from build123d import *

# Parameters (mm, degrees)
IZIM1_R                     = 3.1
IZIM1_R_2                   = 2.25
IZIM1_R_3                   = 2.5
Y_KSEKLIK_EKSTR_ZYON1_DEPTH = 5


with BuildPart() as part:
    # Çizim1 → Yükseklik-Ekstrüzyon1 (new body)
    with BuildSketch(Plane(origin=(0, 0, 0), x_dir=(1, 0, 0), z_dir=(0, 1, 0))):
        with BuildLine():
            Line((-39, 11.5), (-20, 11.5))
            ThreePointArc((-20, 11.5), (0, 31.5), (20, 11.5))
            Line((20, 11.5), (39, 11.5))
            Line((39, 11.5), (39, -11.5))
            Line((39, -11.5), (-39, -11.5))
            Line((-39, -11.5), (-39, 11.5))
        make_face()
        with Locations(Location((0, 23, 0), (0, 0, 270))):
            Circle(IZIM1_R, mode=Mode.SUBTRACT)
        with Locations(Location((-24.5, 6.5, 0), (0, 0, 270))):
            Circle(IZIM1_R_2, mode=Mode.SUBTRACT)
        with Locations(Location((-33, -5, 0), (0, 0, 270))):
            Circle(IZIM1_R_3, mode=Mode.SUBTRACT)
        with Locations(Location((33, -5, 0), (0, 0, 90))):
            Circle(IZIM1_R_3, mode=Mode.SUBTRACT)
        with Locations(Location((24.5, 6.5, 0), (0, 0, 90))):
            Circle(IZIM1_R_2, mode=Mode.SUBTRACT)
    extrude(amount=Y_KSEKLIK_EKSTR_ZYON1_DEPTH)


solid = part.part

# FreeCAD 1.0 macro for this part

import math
import FreeCAD as App
import Part
import Sketcher
from FreeCAD import Vector

doc = App.newDocument("Part")
body = doc.addObject("PartDesign::Body", "Body")

# Sketch on XZ plane
sketch1 = body.newObject("Sketcher::SketchObject", "Sketch")
sketch1.AttachmentSupport = (doc.getObject("XZ_Plane"), [""])
sketch1.MapMode = "FlatFace"
sketch1.addGeometry([
    Part.LineSegment(Vector(-20, -11.5, 0), Vector(-39, -11.5, 0)),  # 0
    Part.LineSegment(Vector(-39, -11.5, 0), Vector(-39, 11.5, 0)),  # 1
    Part.LineSegment(Vector(-39, 11.5, 0), Vector(39, 11.5, 0)),  # 2
    Part.LineSegment(Vector(39, 11.5, 0), Vector(39, -11.5, 0)),  # 3
    Part.LineSegment(Vector(39, -11.5, 0), Vector(20, -11.5, 0)),  # 4
    Part.ArcOfCircle(Part.Circle(Vector(0, -11.5, 0), Vector(0, 0, 1), 20), math.radians(180), math.radians(360)),  # 5
    Part.Circle(Vector(33, 5, 0), Vector(0, 0, 1), 2.5),  # 6
    Part.Circle(Vector(24.5, -6.5, 0), Vector(0, 0, 1), 2.2),  # 7
    Part.Circle(Vector(-33, 5, 0), Vector(0, 0, 1), 2.5),  # 8
    Part.Circle(Vector(-24.5, -6.5, 0), Vector(0, 0, 1), 2.2),  # 9
    Part.Circle(Vector(0, -23, 0), Vector(0, 0, 1), 3.1),  # 10
], False)
sketch1.addConstraint([
    Sketcher.Constraint("Coincident", 0, 2, 1, 1),
    Sketcher.Constraint("Coincident", 1, 2, 2, 1),
    Sketcher.Constraint("Coincident", 2, 2, 3, 1),
    Sketcher.Constraint("Coincident", 3, 2, 4, 1),
    Sketcher.Constraint("Coincident", 4, 2, 5, 2),
    Sketcher.Constraint("Coincident", 5, 1, 0, 1),
    Sketcher.Constraint("Horizontal", 0),
    Sketcher.Constraint("Vertical", 1),
    Sketcher.Constraint("Horizontal", 2),
    Sketcher.Constraint("Vertical", 3),
    Sketcher.Constraint("Horizontal", 4),
    Sketcher.Constraint("Equal", 6, 8),
    Sketcher.Constraint("Equal", 7, 9),
    Sketcher.Constraint("Symmetric", 0, 2, 2, 2, -1, 1),
    Sketcher.Constraint("Symmetric", 6, 3, 8, 3, -2),
    Sketcher.Constraint("Symmetric", 7, 3, 9, 3, -2),
    Sketcher.Constraint("Symmetric", 4, 2, 5, 1, -2),
    Sketcher.Constraint("PointOnObject", 10, 3, -2),
    Sketcher.Constraint("Horizontal", 5, 3, 0, 2),
    Sketcher.Constraint("Diameter", 6, 5.0),
    Sketcher.Constraint("Radius", 5, 20.0),
    Sketcher.Constraint("Diameter", 7, 4.5),
    Sketcher.Constraint("Diameter", 10, 6.2),
    Sketcher.Constraint("DistanceX", 0, 2, 0, 1, 19.0),
    Sketcher.Constraint("DistanceY", 1, 1, 1, 2, 23.0),
    Sketcher.Constraint("DistanceX", -1, 1, 6, 3, 33.0),
    Sketcher.Constraint("DistanceY", -1, 1, 6, 3, 5.0),
    Sketcher.Constraint("DistanceY", 10, 3, -1, 1, 23.0),
    Sketcher.Constraint("DistanceY", 5, 3, 7, 3, 5.0),
    Sketcher.Constraint("DistanceX", 9, 3, 7, 3, 49.0),
])
pad1 = body.newObject("PartDesign::Pad", "Pad")
pad1.Profile = sketch1
pad1.Length = 5
pad1.Reversed = True

doc.recompute()
